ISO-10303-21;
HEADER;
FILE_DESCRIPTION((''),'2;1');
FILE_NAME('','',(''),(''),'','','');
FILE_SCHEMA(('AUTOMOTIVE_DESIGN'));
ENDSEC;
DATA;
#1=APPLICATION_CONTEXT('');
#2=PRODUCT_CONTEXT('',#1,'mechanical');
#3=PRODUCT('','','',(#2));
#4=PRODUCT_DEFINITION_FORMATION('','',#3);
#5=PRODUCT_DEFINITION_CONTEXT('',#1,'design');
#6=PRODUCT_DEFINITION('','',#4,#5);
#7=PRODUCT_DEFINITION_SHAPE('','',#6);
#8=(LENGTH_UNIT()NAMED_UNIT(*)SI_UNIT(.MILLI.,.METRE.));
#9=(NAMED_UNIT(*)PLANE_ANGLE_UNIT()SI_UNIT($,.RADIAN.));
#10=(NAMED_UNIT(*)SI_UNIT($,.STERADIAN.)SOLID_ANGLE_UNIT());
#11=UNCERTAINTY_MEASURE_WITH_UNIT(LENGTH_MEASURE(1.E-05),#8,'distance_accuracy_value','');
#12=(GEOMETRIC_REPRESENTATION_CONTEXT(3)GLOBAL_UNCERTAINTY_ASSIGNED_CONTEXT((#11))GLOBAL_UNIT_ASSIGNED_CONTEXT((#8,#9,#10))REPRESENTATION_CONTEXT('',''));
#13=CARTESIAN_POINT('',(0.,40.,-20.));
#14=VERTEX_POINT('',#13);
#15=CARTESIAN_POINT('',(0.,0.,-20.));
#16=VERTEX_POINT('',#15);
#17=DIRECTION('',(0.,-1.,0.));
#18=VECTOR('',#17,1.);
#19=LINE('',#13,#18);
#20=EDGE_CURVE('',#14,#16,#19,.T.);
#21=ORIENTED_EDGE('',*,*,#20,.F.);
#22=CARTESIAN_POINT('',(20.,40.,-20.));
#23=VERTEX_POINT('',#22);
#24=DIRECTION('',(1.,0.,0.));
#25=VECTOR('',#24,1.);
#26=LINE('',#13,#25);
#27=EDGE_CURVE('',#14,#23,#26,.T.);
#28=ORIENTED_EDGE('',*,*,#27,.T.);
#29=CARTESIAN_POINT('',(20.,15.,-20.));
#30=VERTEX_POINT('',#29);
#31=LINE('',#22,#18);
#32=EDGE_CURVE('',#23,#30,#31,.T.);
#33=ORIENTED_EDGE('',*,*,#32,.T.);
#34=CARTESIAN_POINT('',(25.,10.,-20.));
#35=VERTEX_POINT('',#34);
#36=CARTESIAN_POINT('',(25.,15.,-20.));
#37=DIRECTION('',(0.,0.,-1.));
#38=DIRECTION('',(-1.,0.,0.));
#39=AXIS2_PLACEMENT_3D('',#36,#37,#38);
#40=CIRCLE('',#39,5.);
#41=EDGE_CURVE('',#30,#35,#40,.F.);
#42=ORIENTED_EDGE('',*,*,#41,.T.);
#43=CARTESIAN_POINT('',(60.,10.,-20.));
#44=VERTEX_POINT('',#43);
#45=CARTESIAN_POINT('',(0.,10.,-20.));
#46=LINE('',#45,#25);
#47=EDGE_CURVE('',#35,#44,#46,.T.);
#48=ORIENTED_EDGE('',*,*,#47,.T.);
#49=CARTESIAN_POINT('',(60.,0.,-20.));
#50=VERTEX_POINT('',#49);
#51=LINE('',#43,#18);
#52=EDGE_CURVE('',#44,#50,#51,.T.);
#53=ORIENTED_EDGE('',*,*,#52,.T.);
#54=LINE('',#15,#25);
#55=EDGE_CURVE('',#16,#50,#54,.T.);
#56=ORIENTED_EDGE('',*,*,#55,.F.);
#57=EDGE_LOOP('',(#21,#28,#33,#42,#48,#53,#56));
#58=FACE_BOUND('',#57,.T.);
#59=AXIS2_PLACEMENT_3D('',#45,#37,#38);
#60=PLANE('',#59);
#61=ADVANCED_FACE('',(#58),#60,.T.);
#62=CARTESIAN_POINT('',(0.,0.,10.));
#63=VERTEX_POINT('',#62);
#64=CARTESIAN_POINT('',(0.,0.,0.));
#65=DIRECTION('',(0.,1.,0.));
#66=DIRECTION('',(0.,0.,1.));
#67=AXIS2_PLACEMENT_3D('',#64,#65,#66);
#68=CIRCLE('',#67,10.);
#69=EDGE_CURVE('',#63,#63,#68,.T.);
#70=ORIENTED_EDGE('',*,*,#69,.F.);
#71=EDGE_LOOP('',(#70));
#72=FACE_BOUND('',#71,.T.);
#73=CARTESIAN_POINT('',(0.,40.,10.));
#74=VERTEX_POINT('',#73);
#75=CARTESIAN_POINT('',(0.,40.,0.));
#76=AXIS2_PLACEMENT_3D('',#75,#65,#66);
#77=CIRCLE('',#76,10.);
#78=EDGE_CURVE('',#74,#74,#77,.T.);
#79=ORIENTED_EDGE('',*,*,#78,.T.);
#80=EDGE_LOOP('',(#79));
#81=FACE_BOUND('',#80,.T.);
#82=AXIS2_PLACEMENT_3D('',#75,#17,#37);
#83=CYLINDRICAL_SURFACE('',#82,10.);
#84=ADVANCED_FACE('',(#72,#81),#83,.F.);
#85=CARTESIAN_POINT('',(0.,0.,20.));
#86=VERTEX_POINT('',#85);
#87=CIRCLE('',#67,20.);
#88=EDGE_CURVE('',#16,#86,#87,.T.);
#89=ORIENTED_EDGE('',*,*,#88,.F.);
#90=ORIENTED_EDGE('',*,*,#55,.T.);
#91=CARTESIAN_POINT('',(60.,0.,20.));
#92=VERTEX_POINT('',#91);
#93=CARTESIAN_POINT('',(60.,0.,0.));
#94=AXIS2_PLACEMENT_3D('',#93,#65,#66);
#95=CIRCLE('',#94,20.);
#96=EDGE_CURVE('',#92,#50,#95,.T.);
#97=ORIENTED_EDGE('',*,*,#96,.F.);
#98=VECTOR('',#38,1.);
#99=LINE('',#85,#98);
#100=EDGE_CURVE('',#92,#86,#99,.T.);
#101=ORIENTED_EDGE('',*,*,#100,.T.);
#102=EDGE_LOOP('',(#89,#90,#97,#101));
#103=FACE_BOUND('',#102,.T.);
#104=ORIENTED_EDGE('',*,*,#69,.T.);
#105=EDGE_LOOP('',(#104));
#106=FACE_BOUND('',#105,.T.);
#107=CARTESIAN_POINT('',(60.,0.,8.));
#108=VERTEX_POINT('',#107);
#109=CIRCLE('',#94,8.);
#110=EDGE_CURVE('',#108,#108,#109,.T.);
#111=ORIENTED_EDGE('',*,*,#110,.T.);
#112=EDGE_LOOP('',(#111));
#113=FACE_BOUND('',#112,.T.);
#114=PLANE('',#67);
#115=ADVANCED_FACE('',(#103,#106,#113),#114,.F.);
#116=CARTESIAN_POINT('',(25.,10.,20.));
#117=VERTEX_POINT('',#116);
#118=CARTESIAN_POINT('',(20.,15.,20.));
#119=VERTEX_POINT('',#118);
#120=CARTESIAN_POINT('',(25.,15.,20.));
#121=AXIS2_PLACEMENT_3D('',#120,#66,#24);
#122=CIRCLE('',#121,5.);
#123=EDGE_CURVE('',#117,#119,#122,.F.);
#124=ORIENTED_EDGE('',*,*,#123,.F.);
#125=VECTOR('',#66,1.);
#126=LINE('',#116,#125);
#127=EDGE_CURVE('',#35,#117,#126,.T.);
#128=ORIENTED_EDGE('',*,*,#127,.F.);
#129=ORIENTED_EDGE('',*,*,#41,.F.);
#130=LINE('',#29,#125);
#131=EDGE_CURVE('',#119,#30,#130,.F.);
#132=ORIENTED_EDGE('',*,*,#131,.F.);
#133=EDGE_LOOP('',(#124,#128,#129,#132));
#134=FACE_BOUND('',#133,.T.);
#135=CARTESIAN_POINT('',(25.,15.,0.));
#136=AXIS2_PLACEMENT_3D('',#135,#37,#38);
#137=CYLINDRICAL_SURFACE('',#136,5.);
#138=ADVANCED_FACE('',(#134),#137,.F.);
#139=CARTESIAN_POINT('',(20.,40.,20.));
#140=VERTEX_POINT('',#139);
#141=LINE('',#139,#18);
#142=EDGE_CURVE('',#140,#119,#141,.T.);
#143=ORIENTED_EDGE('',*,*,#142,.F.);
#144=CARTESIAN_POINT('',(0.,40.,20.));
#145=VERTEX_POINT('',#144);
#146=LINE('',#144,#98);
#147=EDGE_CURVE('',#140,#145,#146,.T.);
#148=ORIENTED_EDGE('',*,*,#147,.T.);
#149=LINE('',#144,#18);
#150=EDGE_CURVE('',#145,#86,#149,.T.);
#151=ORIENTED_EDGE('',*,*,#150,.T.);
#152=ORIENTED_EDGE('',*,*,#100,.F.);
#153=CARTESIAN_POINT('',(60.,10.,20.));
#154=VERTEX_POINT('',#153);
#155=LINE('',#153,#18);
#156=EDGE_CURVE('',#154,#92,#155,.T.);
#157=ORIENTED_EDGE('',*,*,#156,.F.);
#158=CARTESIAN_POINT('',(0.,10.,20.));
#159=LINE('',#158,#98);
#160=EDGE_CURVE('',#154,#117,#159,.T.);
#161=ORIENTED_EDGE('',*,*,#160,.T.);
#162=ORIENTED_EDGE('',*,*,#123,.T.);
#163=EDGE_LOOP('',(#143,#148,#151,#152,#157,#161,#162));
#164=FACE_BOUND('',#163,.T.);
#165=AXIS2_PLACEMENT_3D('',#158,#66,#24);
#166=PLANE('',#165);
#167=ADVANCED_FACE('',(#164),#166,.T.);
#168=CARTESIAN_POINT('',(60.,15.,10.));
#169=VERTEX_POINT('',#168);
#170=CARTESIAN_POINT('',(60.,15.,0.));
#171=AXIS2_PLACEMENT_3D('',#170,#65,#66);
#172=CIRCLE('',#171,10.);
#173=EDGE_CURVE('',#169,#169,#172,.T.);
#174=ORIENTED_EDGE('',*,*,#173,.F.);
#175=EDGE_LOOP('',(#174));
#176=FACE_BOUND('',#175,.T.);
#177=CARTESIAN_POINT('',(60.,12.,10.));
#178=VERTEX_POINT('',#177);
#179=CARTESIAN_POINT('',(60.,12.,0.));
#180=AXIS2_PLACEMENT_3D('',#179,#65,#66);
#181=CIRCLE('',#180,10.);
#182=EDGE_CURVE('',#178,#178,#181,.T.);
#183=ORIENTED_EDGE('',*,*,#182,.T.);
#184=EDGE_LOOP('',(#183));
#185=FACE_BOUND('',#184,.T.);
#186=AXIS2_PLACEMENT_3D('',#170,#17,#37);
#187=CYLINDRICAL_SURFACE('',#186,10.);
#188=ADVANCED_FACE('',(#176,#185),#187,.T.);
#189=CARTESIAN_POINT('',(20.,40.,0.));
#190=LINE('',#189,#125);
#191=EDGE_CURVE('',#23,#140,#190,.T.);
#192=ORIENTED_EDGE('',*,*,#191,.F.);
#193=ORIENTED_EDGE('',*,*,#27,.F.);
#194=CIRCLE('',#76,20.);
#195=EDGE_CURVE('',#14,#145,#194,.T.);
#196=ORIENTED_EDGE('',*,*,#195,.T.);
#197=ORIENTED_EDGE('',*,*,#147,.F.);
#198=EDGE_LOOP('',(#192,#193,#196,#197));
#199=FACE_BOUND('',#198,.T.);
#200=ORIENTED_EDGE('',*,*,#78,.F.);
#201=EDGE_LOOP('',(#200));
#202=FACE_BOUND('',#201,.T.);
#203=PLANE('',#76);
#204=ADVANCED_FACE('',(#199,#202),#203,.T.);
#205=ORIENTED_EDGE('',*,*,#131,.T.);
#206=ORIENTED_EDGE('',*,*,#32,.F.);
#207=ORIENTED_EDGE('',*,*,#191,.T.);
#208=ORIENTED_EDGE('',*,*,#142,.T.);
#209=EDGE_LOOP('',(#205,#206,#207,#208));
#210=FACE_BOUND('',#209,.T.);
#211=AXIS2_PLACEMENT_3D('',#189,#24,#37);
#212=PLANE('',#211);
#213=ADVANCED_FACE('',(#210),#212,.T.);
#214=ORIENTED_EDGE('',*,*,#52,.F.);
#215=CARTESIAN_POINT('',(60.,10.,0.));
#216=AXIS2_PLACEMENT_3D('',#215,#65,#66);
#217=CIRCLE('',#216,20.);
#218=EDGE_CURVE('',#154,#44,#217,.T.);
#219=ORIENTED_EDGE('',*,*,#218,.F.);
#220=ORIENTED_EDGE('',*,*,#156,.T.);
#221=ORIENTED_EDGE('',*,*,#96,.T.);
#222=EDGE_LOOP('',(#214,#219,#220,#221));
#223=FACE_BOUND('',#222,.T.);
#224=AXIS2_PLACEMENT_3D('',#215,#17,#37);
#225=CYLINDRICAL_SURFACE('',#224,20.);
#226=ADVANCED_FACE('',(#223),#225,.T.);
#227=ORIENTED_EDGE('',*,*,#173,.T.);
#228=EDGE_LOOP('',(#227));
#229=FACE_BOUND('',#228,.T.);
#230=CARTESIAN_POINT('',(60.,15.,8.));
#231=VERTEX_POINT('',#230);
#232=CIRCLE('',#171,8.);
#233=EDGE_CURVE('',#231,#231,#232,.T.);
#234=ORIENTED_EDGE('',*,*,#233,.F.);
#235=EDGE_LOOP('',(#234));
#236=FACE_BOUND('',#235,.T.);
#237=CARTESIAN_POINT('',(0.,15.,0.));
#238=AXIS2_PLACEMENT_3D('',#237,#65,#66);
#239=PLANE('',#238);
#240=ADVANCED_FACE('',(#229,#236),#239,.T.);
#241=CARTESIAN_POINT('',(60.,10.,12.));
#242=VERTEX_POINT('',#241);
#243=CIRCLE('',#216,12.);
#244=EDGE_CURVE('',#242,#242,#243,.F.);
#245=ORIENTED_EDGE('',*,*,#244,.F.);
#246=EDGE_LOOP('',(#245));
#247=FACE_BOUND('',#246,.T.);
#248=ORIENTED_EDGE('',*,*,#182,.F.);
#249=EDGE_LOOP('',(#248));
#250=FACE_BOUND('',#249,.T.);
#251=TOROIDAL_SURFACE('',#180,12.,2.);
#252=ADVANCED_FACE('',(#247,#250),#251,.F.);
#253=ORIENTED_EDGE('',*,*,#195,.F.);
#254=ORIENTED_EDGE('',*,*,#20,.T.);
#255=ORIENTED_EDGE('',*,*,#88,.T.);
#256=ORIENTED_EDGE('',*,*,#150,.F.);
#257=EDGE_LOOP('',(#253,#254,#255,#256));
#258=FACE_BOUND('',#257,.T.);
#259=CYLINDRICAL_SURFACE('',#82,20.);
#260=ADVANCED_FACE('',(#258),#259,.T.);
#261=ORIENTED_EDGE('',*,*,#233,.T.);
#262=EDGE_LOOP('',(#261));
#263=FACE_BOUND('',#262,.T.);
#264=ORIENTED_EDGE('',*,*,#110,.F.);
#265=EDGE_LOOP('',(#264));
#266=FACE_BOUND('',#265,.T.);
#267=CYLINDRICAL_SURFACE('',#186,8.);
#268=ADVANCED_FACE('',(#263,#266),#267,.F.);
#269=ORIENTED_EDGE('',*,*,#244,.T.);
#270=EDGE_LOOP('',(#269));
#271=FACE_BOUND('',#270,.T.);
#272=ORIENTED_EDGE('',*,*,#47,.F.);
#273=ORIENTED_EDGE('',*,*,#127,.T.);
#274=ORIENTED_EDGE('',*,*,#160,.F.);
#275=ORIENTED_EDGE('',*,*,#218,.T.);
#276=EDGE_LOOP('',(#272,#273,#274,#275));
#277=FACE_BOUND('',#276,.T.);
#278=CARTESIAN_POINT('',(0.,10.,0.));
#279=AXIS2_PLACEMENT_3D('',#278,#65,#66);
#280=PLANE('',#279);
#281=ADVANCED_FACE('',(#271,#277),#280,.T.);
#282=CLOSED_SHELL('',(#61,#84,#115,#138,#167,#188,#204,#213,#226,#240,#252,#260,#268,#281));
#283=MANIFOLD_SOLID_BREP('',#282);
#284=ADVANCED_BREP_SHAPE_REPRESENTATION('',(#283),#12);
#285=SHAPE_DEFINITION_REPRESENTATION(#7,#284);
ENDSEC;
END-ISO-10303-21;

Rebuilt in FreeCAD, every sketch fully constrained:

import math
import FreeCAD as App
import Part
import Sketcher

V = App.Vector
Q = App.Units.Quantity


def edges_at(feature, points):
    """Names of the edges that pass closest to the given points."""
    edges = feature.Shape.Edges
    near = lambda p: min(range(len(edges)), key=lambda i: edges[i].distToShape(Part.Vertex(*p))[0])
    return sorted({f"Edge{near(p) + 1}" for p in points})

doc = App.newDocument("Part")
params = doc.addObject("Spreadsheet::Sheet", "Params")
for row, (alias, value) in enumerate([
    ("sketch1_diameter", "20 mm"),
    ("sketch1_radius", "20 mm"),
    ("pad1_length", "10 mm"),
    ("sketch2_diameter", "20 mm"),
    ("sketch2_diameter2", "16 mm"),
    ("pad2_length", "15 mm"),
    ("sketch3_diameter", "20 mm"),
    ("sketch3_radius", "20 mm"),
    ("sketch3_width", "20 mm"),
    ("pad3_length", "40 mm"),
    ("fillet_radius", "5 mm"),
    ("fillet2_radius", "2 mm"),
], start=1):
    params.set(f"A{row}", alias)
    params.set(f"B{row}", "=" + value)
    params.setAlias(f"B{row}", alias)

body = doc.addObject("PartDesign::Body", "Body")

sketch1 = body.newObject("Sketcher::SketchObject", "Sketch")
sketch1.AttachmentSupport = (doc.getObject("XZ_Plane"), [""])
sketch1.MapMode = "FlatFace"
sketch1.addGeometry(Part.LineSegment(V(60, -20, 0), V(20, -20, 0)), False)
sketch1.addGeometry(Part.LineSegment(V(20, -20, 0), V(20, 20, 0)), False)
sketch1.addGeometry(Part.LineSegment(V(20, 20, 0), V(60, 20, 0)), False)
sketch1.addGeometry(Part.ArcOfCircle(Part.Circle(V(60, 0, 0), V(0, 0, 1), 20), math.radians(-90), math.radians(90)), False)
sketch1.addGeometry(Part.Circle(V(60, 0, 0), V(0, 0, 1), 10), False)
sketch1.addConstraint(Sketcher.Constraint("Coincident", 0, 2, 1, 1))
sketch1.addConstraint(Sketcher.Constraint("Coincident", 1, 2, 2, 1))
sketch1.addConstraint(Sketcher.Constraint("Tangent", 2, 2, 3, 2))
sketch1.addConstraint(Sketcher.Constraint("Tangent", 3, 1, 0, 1))
sketch1.addConstraint(Sketcher.Constraint("Horizontal", 0))
sketch1.addConstraint(Sketcher.Constraint("Vertical", 1))
sketch1.addConstraint(Sketcher.Constraint("Horizontal", 2))
sketch1.addConstraint(Sketcher.Constraint("Coincident", 4, 3, 3, 3))
sketch1.addConstraint(Sketcher.Constraint("PointOnObject", 3, 3, -1))
sketch1.addConstraint(Sketcher.Constraint("Equal", 2, 1))
sketch1.addConstraint(Sketcher.Constraint("Diameter", 4, Q("20 mm")))
sketch1.addConstraint(Sketcher.Constraint("Radius", 3, Q("20 mm")))
sketch1.addConstraint(Sketcher.Constraint("DistanceX", -1, 1, 3, 3, Q("60 mm")))
sketch1.setExpression("Constraints[10]", "Params.sketch1_diameter")
sketch1.setExpression("Constraints[11]", "Params.sketch1_radius")
pad1 = body.newObject("PartDesign::Pad", "Pad")
pad1.Profile = sketch1
pad1.setExpression("Length", "Params.pad1_length")
pad1.Reversed = True

sketch2 = body.newObject("Sketcher::SketchObject", "Sketch001")
sketch2.AttachmentSupport = (doc.getObject("XZ_Plane"), [""])
sketch2.MapMode = "FlatFace"
sketch2.addGeometry(Part.Circle(V(60, 0, 0), V(0, 0, 1), 10), False)
sketch2.addGeometry(Part.Circle(V(60, 0, 0), V(0, 0, 1), 8), False)
sketch2.addConstraint(Sketcher.Constraint("Coincident", 1, 3, 0, 3))
sketch2.addConstraint(Sketcher.Constraint("PointOnObject", 0, 3, -1))
sketch2.addConstraint(Sketcher.Constraint("Diameter", 0, Q("20 mm")))
sketch2.addConstraint(Sketcher.Constraint("Diameter", 1, Q("16 mm")))
sketch2.addConstraint(Sketcher.Constraint("DistanceX", -1, 1, 0, 3, Q("60 mm")))
sketch2.setExpression("Constraints[2]", "Params.sketch2_diameter")
sketch2.setExpression("Constraints[3]", "Params.sketch2_diameter2")
pad2 = body.newObject("PartDesign::Pad", "Pad001")
pad2.Profile = sketch2
pad2.setExpression("Length", "Params.pad2_length")
pad2.Reversed = True

sketch3 = body.newObject("Sketcher::SketchObject", "Sketch002")
sketch3.AttachmentSupport = (doc.getObject("XZ_Plane"), [""])
sketch3.MapMode = "FlatFace"
sketch3.addGeometry(Part.LineSegment(V(20, -20, 0), V(0, -20, 0)), False)
sketch3.addGeometry(Part.ArcOfCircle(Part.Circle(V(0, 0, 0), V(0, 0, 1), 20), math.radians(90), math.radians(270)), False)
sketch3.addGeometry(Part.LineSegment(V(0, 20, 0), V(20, 20, 0)), False)
sketch3.addGeometry(Part.LineSegment(V(20, 20, 0), V(20, -20, 0)), False)
sketch3.addGeometry(Part.Circle(V(0, 0, 0), V(0, 0, 1), 10), False)
sketch3.addConstraint(Sketcher.Constraint("Tangent", 0, 2, 1, 2))
sketch3.addConstraint(Sketcher.Constraint("Tangent", 1, 1, 2, 1))
sketch3.addConstraint(Sketcher.Constraint("Coincident", 2, 2, 3, 1))
sketch3.addConstraint(Sketcher.Constraint("Coincident", 3, 2, 0, 1))
sketch3.addConstraint(Sketcher.Constraint("Horizontal", 0))
sketch3.addConstraint(Sketcher.Constraint("Horizontal", 2))
sketch3.addConstraint(Sketcher.Constraint("Vertical", 3))
sketch3.addConstraint(Sketcher.Constraint("Coincident", 1, 3, -1, 1))
sketch3.addConstraint(Sketcher.Constraint("Coincident", 4, 3, -1, 1))
sketch3.addConstraint(Sketcher.Constraint("Diameter", 4, Q("20 mm")))
sketch3.addConstraint(Sketcher.Constraint("Radius", 1, Q("20 mm")))
sketch3.addConstraint(Sketcher.Constraint("DistanceX", 0, 2, 0, 1, Q("20 mm")))
sketch3.setExpression("Constraints[9]", "Params.sketch3_diameter")
sketch3.setExpression("Constraints[10]", "Params.sketch3_radius")
sketch3.setExpression("Constraints[11]", "Params.sketch3_width")
pad3 = body.newObject("PartDesign::Pad", "Pad002")
pad3.Profile = sketch3
pad3.setExpression("Length", "Params.pad3_length")
pad3.Reversed = True
doc.recompute()

fillet = body.newObject("PartDesign::Fillet", "Fillet")
fillet.Base = (pad3, edges_at(pad3, [(20, 10, 0)]))
fillet.setExpression("Radius", "Params.fillet_radius")
doc.recompute()

fillet2 = body.newObject("PartDesign::Fillet", "Fillet001")
fillet2.Base = (fillet, edges_at(fillet, [(60, 10, -10)]))
fillet2.setExpression("Radius", "Params.fillet2_radius")

doc.recompute()
